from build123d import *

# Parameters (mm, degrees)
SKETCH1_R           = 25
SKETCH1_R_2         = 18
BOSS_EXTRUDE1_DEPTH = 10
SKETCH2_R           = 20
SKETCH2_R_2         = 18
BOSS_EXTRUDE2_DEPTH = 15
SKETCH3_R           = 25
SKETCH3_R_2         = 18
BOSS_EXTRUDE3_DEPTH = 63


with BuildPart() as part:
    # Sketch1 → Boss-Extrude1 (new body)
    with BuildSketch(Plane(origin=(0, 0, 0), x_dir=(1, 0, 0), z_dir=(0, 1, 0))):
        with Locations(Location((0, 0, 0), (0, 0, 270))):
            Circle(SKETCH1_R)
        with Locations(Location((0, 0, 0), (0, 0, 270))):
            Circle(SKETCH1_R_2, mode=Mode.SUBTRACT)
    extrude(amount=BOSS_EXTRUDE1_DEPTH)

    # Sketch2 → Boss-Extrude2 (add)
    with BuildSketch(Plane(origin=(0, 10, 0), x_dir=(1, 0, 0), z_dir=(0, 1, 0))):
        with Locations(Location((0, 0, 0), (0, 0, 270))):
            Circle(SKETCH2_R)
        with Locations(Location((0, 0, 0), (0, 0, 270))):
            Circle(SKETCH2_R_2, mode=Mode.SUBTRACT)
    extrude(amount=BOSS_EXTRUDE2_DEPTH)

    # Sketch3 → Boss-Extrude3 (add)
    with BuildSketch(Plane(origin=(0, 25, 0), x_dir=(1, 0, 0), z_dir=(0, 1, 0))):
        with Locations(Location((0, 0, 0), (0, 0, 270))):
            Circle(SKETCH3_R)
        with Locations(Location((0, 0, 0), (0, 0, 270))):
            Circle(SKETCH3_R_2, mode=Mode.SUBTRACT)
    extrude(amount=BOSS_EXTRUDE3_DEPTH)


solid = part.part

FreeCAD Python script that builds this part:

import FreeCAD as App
import Part
import Sketcher

doc = App.newDocument("Part")
body = doc.addObject("PartDesign::Body", "Body")

sketch1 = body.newObject("Sketcher::SketchObject", "Sketch")
sketch1.AttachmentSupport = (doc.getObject("XZ_Plane"), [""])
sketch1.MapMode = "FlatFace"
sketch1.addGeometry([
    Part.Circle(App.Vector(0, 0, 0), App.Vector(0, 0, 1), 25),
    Part.Circle(App.Vector(0, 0, 0), App.Vector(0, 0, 1), 18),
], False)
sketch1.addConstraint([
    Sketcher.Constraint("Coincident", 0, 3, -1, 1),
    Sketcher.Constraint("Coincident", 1, 3, -1, 1),
    Sketcher.Constraint("Diameter", 0, 50.0),
    Sketcher.Constraint("Diameter", 1, 36.0),
])
pad1 = body.newObject("PartDesign::Pad", "Pad")
pad1.Profile = sketch1
pad1.Length = 10
pad1.Reversed = True

sketch2 = body.newObject("Sketcher::SketchObject", "Sketch001")
sketch2.AttachmentSupport = (doc.getObject("XZ_Plane"), [""])
sketch2.MapMode = "FlatFace"
sketch2.AttachmentOffset = App.Placement(App.Vector(0, 0, -10), App.Rotation())
sketch2.addGeometry([
    Part.Circle(App.Vector(0, 0, 0), App.Vector(0, 0, 1), 20),
    Part.Circle(App.Vector(0, 0, 0), App.Vector(0, 0, 1), 18),
], False)
sketch2.addConstraint([
    Sketcher.Constraint("Coincident", 0, 3, -1, 1),
    Sketcher.Constraint("Coincident", 1, 3, -1, 1),
    Sketcher.Constraint("Diameter", 0, 40.0),
    Sketcher.Constraint("Diameter", 1, 36.0),
])
pad2 = body.newObject("PartDesign::Pad", "Pad001")
pad2.Profile = sketch2
pad2.Length = 15
pad2.Reversed = True

sketch3 = body.newObject("Sketcher::SketchObject", "Sketch002")
sketch3.AttachmentSupport = (doc.getObject("XZ_Plane"), [""])
sketch3.MapMode = "FlatFace"
sketch3.AttachmentOffset = App.Placement(App.Vector(0, 0, -25), App.Rotation())
sketch3.addGeometry([
    Part.Circle(App.Vector(0, 0, 0), App.Vector(0, 0, 1), 25),
    Part.Circle(App.Vector(0, 0, 0), App.Vector(0, 0, 1), 18),
], False)
sketch3.addConstraint([
    Sketcher.Constraint("Coincident", 0, 3, -1, 1),
    Sketcher.Constraint("Coincident", 1, 3, -1, 1),
    Sketcher.Constraint("Diameter", 0, 50.0),
    Sketcher.Constraint("Diameter", 1, 36.0),
])
pad3 = body.newObject("PartDesign::Pad", "Pad002")
pad3.Profile = sketch3
pad3.Length = 63
pad3.Reversed = True

doc.recompute()
